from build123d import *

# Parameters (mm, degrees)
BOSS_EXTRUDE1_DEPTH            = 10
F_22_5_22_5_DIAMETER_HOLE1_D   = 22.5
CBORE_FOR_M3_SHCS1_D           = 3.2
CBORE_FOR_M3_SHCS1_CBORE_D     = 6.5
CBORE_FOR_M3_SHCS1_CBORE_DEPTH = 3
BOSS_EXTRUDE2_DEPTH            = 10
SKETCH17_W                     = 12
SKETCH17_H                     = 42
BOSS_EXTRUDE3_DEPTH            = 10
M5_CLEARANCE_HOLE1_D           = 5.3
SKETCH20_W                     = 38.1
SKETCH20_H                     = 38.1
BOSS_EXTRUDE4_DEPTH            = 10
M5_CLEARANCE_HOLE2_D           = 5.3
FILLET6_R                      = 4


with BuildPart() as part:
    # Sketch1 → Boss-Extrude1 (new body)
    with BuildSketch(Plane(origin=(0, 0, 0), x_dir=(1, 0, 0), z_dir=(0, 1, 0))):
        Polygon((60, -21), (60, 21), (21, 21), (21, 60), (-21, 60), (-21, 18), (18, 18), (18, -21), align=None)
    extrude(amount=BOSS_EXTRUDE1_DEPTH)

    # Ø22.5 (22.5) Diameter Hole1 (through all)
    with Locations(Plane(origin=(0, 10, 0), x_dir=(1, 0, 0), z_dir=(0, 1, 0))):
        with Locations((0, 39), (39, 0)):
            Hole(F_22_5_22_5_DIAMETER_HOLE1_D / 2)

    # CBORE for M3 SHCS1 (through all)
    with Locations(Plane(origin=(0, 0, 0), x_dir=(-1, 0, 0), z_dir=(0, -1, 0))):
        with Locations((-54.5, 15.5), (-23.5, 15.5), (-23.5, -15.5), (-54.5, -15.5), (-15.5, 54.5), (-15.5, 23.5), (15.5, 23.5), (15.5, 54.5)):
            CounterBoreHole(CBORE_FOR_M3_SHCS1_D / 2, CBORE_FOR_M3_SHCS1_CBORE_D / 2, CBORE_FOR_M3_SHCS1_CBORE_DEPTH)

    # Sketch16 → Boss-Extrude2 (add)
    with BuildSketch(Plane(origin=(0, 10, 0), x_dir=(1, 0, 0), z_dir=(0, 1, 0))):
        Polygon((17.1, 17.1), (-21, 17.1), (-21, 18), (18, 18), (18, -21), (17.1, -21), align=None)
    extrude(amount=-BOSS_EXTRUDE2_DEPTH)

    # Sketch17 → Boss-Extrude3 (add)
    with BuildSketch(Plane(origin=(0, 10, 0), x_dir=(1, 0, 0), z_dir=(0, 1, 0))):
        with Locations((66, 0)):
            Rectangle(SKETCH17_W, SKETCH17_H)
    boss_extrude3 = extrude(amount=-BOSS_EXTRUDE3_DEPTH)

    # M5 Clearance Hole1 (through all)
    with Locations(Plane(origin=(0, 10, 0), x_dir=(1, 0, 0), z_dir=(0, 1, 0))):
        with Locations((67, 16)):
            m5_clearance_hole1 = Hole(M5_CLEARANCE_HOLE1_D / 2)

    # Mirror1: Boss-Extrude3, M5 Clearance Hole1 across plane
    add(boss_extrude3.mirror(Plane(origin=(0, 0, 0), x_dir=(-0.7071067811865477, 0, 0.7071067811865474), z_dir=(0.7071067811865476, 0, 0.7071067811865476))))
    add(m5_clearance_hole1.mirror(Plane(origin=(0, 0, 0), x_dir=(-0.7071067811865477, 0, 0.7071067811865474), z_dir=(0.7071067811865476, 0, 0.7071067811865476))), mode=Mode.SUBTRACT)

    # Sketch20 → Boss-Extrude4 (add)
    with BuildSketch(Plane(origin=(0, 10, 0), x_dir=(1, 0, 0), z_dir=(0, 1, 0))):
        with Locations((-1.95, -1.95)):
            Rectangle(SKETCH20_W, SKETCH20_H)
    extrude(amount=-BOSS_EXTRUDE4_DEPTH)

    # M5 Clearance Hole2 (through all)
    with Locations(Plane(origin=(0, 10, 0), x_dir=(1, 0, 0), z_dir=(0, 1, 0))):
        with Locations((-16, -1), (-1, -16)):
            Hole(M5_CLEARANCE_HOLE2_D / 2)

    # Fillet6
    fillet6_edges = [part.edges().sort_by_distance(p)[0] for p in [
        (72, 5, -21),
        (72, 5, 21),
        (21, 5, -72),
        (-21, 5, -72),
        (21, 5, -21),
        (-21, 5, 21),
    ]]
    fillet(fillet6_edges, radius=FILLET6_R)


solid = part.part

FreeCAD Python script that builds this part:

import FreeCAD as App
import Part
import Sketcher


def edges_at(feature, points):
    """Names of the edges that pass closest to the given points."""
    edges = feature.Shape.Edges
    near = lambda p: min(range(len(edges)), key=lambda i: edges[i].distToShape(Part.Vertex(*p))[0])
    return sorted({f"Edge{near(p) + 1}" for p in points})


def add_polygon(sketch, points):
    """Adds a closed chain of lines whose ends are joined by coincident constraints."""
    first, n = sketch.GeometryCount, len(points)
    for a, b in zip(points, points[1:] + points[:1]):
        sketch.addGeometry(Part.LineSegment(App.Vector(*a, 0), App.Vector(*b, 0)), False)
    for i in range(n):
        sketch.addConstraint(Sketcher.Constraint("Coincident", first + i, 2, first + (i + 1) % n, 1))

doc = App.newDocument("Part")
body = doc.addObject("PartDesign::Body", "Body")

# Sketch on XZ plane
sketch1 = doc.addObject("Sketcher::SketchObject", "Sketch")
body.addObject(sketch1)
sketch1.AttachmentSupport = (doc.XZ_Plane, [""])
sketch1.MapMode = "FlatFace"
add_polygon(sketch1, [(60, 21), (60, -21), (21, -21), (21, -60), (-21, -60), (-21, -18), (18, -18), (18, 21)])  # lines 0-7
sketch1.addConstraint(Sketcher.Constraint("Vertical", 0))
sketch1.addConstraint(Sketcher.Constraint("Horizontal", 1))
sketch1.addConstraint(Sketcher.Constraint("Vertical", 2))
sketch1.addConstraint(Sketcher.Constraint("Horizontal", 3))
sketch1.addConstraint(Sketcher.Constraint("Vertical", 4))
sketch1.addConstraint(Sketcher.Constraint("Horizontal", 5))
sketch1.addConstraint(Sketcher.Constraint("Vertical", 6))
sketch1.addConstraint(Sketcher.Constraint("Horizontal", 7))
sketch1.addConstraint(Sketcher.Constraint("Equal", 1, 5))
sketch1.addConstraint(Sketcher.Constraint("Equal", 7, 0))
sketch1.addConstraint(Sketcher.Constraint("Equal", 5, 2))
sketch1.addConstraint(Sketcher.Constraint("Equal", 0, 4))
sketch1.addConstraint(Sketcher.Constraint("DistanceX", 1, 2, 1, 1, 39.0))
sketch1.addConstraint(Sketcher.Constraint("DistanceX", 3, 2, 3, 1, 42.0))
sketch1.addConstraint(Sketcher.Constraint("DistanceX", -1, 1, 0, 2, 60.0))
sketch1.addConstraint(Sketcher.Constraint("DistanceY", 0, 2, -1, 1, 21.0))
pad1 = doc.addObject("PartDesign::Pad", "Pad")
body.addObject(pad1)
pad1.Profile = sketch1
pad1.Length = 10
pad1.Reversed = True

# Sketch on XZ plane
sketch2 = doc.addObject("Sketcher::SketchObject", "Sketch001")
body.addObject(sketch2)
sketch2.AttachmentSupport = (doc.XZ_Plane, [""])
sketch2.MapMode = "FlatFace"
sketch2.AttachmentOffset = App.Placement(App.Vector(0, 0, -10), App.Rotation())
sketch2.addGeometry(Part.Circle(App.Vector(0, -39, 0), App.Vector(0, 0, 1), 11), False)
sketch2.addGeometry(Part.Circle(App.Vector(39, 0, 0), App.Vector(0, 0, 1), 11), False)
sketch2.addConstraint(Sketcher.Constraint("Equal", 0, 1))
sketch2.addConstraint(Sketcher.Constraint("PointOnObject", 0, 3, -2))
sketch2.addConstraint(Sketcher.Constraint("PointOnObject", 1, 3, -1))
sketch2.addConstraint(Sketcher.Constraint("Diameter", 0, 22.5))
sketch2.addConstraint(Sketcher.Constraint("DistanceY", 0, 3, -1, 1, 39.0))
sketch2.addConstraint(Sketcher.Constraint("DistanceX", -1, 1, 1, 3, 39.0))
doc.recompute()
hole = doc.addObject("PartDesign::Hole", "Hole")
body.addObject(hole)
hole.Profile = sketch2
hole.ThreadType = "None"
hole.Diameter = 22.5
hole.DepthType = "ThroughAll"
hole.Reversed = True

# Sketch on XZ plane
sketch3 = doc.addObject("Sketcher::SketchObject", "Sketch002")
body.addObject(sketch3)
sketch3.AttachmentSupport = (doc.XZ_Plane, [""])
sketch3.MapMode = "FlatFace"
sketch3.addGeometry(Part.Circle(App.Vector(54.5, -15.5, 0), App.Vector(0, 0, 1), 1.6), False)
sketch3.addGeometry(Part.Circle(App.Vector(23.5, -15.5, 0), App.Vector(0, 0, 1), 1.6), False)
sketch3.addGeometry(Part.Circle(App.Vector(23.5, 15.5, 0), App.Vector(0, 0, 1), 1.6), False)
sketch3.addGeometry(Part.Circle(App.Vector(54.5, 15.5, 0), App.Vector(0, 0, 1), 1.6), False)
sketch3.addGeometry(Part.Circle(App.Vector(15.5, -54.5, 0), App.Vector(0, 0, 1), 1.6), False)
sketch3.addGeometry(Part.Circle(App.Vector(15.5, -23.5, 0), App.Vector(0, 0, 1), 1.6), False)
sketch3.addGeometry(Part.Circle(App.Vector(-15.5, -23.5, 0), App.Vector(0, 0, 1), 1.6), False)
sketch3.addGeometry(Part.Circle(App.Vector(-15.5, -54.5, 0), App.Vector(0, 0, 1), 1.6), False)
sketch3.addConstraint(Sketcher.Constraint("Equal", 0, 1))
sketch3.addConstraint(Sketcher.Constraint("Equal", 1, 2))
sketch3.addConstraint(Sketcher.Constraint("Equal", 2, 3))
sketch3.addConstraint(Sketcher.Constraint("Equal", 3, 4))
sketch3.addConstraint(Sketcher.Constraint("Equal", 4, 5))
sketch3.addConstraint(Sketcher.Constraint("Equal", 5, 6))
sketch3.addConstraint(Sketcher.Constraint("Equal", 6, 7))
sketch3.addConstraint(Sketcher.Constraint("Symmetric", 5, 3, 6, 3, -2))
sketch3.addConstraint(Sketcher.Constraint("Symmetric", 4, 3, 7, 3, -2))
sketch3.addConstraint(Sketcher.Constraint("Symmetric", 1, 3, 2, 3, -1))
sketch3.addConstraint(Sketcher.Constraint("Symmetric", 0, 3, 3, 3, -1))
sketch3.addConstraint(Sketcher.Constraint("Horizontal", 0, 3, 1, 3))
sketch3.addConstraint(Sketcher.Constraint("Vertical", 4, 3, 5, 3))
sketch3.addConstraint(Sketcher.Constraint("Diameter", 0, 3.2))
sketch3.addConstraint(Sketcher.Constraint("DistanceX", 1, 3, 0, 3, 31.0))
sketch3.addConstraint(Sketcher.Constraint("DistanceY", 1, 3, 2, 3, 31.0))
sketch3.addConstraint(Sketcher.Constraint("DistanceX", 4, 3, 1, 3, 8.0))
sketch3.addConstraint(Sketcher.Constraint("DistanceY", 4, 3, 1, 3, 39.0))
sketch3.addConstraint(Sketcher.Constraint("DistanceY", 5, 3, 1, 3, 8.0))
sketch3.addConstraint(Sketcher.Constraint("DistanceX", 6, 3, 5, 3, 31.0))
doc.recompute()
hole2 = doc.addObject("PartDesign::Hole", "Hole001")
body.addObject(hole2)
hole2.Profile = sketch3
hole2.ThreadType = "None"
hole2.Diameter = 3.2
hole2.DepthType = "ThroughAll"
hole2.HoleCutType = "Counterbore"
hole2.HoleCutDiameter = 6.5
hole2.HoleCutDepth = 3

# Sketch on XZ plane
sketch4 = doc.addObject("Sketcher::SketchObject", "Sketch003")
body.addObject(sketch4)
sketch4.AttachmentSupport = (doc.XZ_Plane, [""])
sketch4.MapMode = "FlatFace"
sketch4.AttachmentOffset = App.Placement(App.Vector(0, 0, -10), App.Rotation())
add_polygon(sketch4, [(-21, -17.1), (17.1, -17.1), (17.1, 21), (18, 21), (18, -18), (-21, -18)])  # lines 0-5
sketch4.addConstraint(Sketcher.Constraint("Horizontal", 0))
sketch4.addConstraint(Sketcher.Constraint("Vertical", 1))
sketch4.addConstraint(Sketcher.Constraint("Horizontal", 2))
sketch4.addConstraint(Sketcher.Constraint("Vertical", 3))
sketch4.addConstraint(Sketcher.Constraint("Horizontal", 4))
sketch4.addConstraint(Sketcher.Constraint("Vertical", 5))
sketch4.addConstraint(Sketcher.Constraint("Equal", 0, 1))
sketch4.addConstraint(Sketcher.Constraint("Equal", 4, 3))
sketch4.addConstraint(Sketcher.Constraint("DistanceX", 4, 2, 4, 1, 39.0))
sketch4.addConstraint(Sketcher.Constraint("DistanceX", 0, 1, 0, 2, 38.1))
sketch4.addConstraint(Sketcher.Constraint("DistanceY", -1, 1, 1, 2, 21.0))
sketch4.addConstraint(Sketcher.Constraint("DistanceX", -1, 1, 2, 2, 18.0))
pad2 = doc.addObject("PartDesign::Pad", "Pad001")
body.addObject(pad2)
pad2.Profile = sketch4
pad2.Length = 10

# Sketch on XZ plane
sketch5 = doc.addObject("Sketcher::SketchObject", "Sketch004")
body.addObject(sketch5)
sketch5.AttachmentSupport = (doc.XZ_Plane, [""])
sketch5.MapMode = "FlatFace"
sketch5.AttachmentOffset = App.Placement(App.Vector(0, 0, -10), App.Rotation())
add_polygon(sketch5, [(60, -21), (60, 21), (72, 21), (72, -21)])  # lines 0-3
sketch5.addConstraint(Sketcher.Constraint("Vertical", 0))
sketch5.addConstraint(Sketcher.Constraint("Horizontal", 1))
sketch5.addConstraint(Sketcher.Constraint("Vertical", 2))
sketch5.addConstraint(Sketcher.Constraint("Horizontal", 3))
sketch5.addConstraint(Sketcher.Constraint("DistanceX", 1, 1, 1, 2, 12.0))
sketch5.addConstraint(Sketcher.Constraint("DistanceY", 0, 1, 0, 2, 42.0))
sketch5.addConstraint(Sketcher.Constraint("DistanceX", -1, 1, 0, 2, 60.0))
sketch5.addConstraint(Sketcher.Constraint("DistanceY", -1, 1, 0, 2, 21.0))
pad3 = doc.addObject("PartDesign::Pad", "Pad002")
body.addObject(pad3)
pad3.Profile = sketch5
pad3.Length = 10

# Sketch on XZ plane
sketch6 = doc.addObject("Sketcher::SketchObject", "Sketch005")
body.addObject(sketch6)
sketch6.AttachmentSupport = (doc.XZ_Plane, [""])
sketch6.MapMode = "FlatFace"
sketch6.AttachmentOffset = App.Placement(App.Vector(0, 0, -10), App.Rotation())
sketch6.addGeometry(Part.Circle(App.Vector(67, -16, 0), App.Vector(0, 0, 1), 2.6), False)
sketch6.addConstraint(Sketcher.Constraint("Diameter", 0, 5.3))
sketch6.addConstraint(Sketcher.Constraint("DistanceX", -1, 1, 0, 3, 67.0))
sketch6.addConstraint(Sketcher.Constraint("DistanceY", 0, 3, -1, 1, 16.0))
doc.recompute()
hole3 = doc.addObject("PartDesign::Hole", "Hole002")
body.addObject(hole3)
hole3.Profile = sketch6
hole3.ThreadType = "None"
hole3.Diameter = 5.3
hole3.DepthType = "ThroughAll"
hole3.Reversed = True
doc.recompute()

datumplane = doc.addObject("PartDesign::Plane", "DatumPlane")
body.addObject(datumplane)
datumplane.Placement = App.Placement(App.Vector(0, 0, 0), App.Rotation(App.Vector(-0.707106781, 0, 0.707106781), App.Vector(0, -1, 0), App.Vector(0.707106781, 0, 0.707106781), "ZXY"))
mirrored = doc.addObject("PartDesign::Mirrored", "Mirrored")
body.addObject(mirrored)
mirrored.Originals = [pad3, hole3]
mirrored.MirrorPlane = (datumplane, [""])
body.Tip = mirrored

# Sketch on XZ plane
sketch7 = doc.addObject("Sketcher::SketchObject", "Sketch006")
body.addObject(sketch7)
sketch7.AttachmentSupport = (doc.XZ_Plane, [""])
sketch7.MapMode = "FlatFace"
sketch7.AttachmentOffset = App.Placement(App.Vector(0, 0, -10), App.Rotation())
add_polygon(sketch7, [(-21, -17), (-21, 21), (17, 21), (17, -17)])  # lines 0-3
sketch7.addConstraint(Sketcher.Constraint("Vertical", 0))
sketch7.addConstraint(Sketcher.Constraint("Horizontal", 1))
sketch7.addConstraint(Sketcher.Constraint("Vertical", 2))
sketch7.addConstraint(Sketcher.Constraint("Horizontal", 3))
sketch7.addConstraint(Sketcher.Constraint("Equal", 3, 0))
sketch7.addConstraint(Sketcher.Constraint("DistanceX", 1, 1, 1, 2, 38.1))
sketch7.addConstraint(Sketcher.Constraint("DistanceX", 0, 2, -1, 1, 21.0))
sketch7.addConstraint(Sketcher.Constraint("DistanceY", -1, 1, 0, 2, 21.0))
pad4 = doc.addObject("PartDesign::Pad", "Pad003")
body.addObject(pad4)
pad4.Profile = sketch7
pad4.Length = 10

# Sketch on XZ plane
sketch8 = doc.addObject("Sketcher::SketchObject", "Sketch007")
body.addObject(sketch8)
sketch8.AttachmentSupport = (doc.XZ_Plane, [""])
sketch8.MapMode = "FlatFace"
sketch8.AttachmentOffset = App.Placement(App.Vector(0, 0, -10), App.Rotation())
sketch8.addGeometry(Part.Circle(App.Vector(-16, 1, 0), App.Vector(0, 0, 1), 2.6), False)
sketch8.addGeometry(Part.Circle(App.Vector(-1, 16, 0), App.Vector(0, 0, 1), 2.6), False)
sketch8.addConstraint(Sketcher.Constraint("Equal", 0, 1))
sketch8.addConstraint(Sketcher.Constraint("Diameter", 0, 5.3))
sketch8.addConstraint(Sketcher.Constraint("DistanceX", 0, 3, -1, 1, 16.0))
sketch8.addConstraint(Sketcher.Constraint("DistanceY", -1, 1, 0, 3, 1.0))
sketch8.addConstraint(Sketcher.Constraint("DistanceX", 1, 3, -1, 1, 1.0))
sketch8.addConstraint(Sketcher.Constraint("DistanceY", -1, 1, 1, 3, 16.0))
doc.recompute()
hole4 = doc.addObject("PartDesign::Hole", "Hole003")
body.addObject(hole4)
hole4.Profile = sketch8
hole4.ThreadType = "None"
hole4.Diameter = 5.3
hole4.DepthType = "ThroughAll"
hole4.Reversed = True
doc.recompute()

fillet = doc.addObject("PartDesign::Fillet", "Fillet")
body.addObject(fillet)
fillet.Base = (hole4, edges_at(hole4, [
    (72, 5, -21),
    (72, 5, 21),
    (21, 5, -72),
    (-21, 5, -72),
    (21, 5, -21),
    (-21, 5, 21),
]))
fillet.Radius = 4

doc.recompute()
